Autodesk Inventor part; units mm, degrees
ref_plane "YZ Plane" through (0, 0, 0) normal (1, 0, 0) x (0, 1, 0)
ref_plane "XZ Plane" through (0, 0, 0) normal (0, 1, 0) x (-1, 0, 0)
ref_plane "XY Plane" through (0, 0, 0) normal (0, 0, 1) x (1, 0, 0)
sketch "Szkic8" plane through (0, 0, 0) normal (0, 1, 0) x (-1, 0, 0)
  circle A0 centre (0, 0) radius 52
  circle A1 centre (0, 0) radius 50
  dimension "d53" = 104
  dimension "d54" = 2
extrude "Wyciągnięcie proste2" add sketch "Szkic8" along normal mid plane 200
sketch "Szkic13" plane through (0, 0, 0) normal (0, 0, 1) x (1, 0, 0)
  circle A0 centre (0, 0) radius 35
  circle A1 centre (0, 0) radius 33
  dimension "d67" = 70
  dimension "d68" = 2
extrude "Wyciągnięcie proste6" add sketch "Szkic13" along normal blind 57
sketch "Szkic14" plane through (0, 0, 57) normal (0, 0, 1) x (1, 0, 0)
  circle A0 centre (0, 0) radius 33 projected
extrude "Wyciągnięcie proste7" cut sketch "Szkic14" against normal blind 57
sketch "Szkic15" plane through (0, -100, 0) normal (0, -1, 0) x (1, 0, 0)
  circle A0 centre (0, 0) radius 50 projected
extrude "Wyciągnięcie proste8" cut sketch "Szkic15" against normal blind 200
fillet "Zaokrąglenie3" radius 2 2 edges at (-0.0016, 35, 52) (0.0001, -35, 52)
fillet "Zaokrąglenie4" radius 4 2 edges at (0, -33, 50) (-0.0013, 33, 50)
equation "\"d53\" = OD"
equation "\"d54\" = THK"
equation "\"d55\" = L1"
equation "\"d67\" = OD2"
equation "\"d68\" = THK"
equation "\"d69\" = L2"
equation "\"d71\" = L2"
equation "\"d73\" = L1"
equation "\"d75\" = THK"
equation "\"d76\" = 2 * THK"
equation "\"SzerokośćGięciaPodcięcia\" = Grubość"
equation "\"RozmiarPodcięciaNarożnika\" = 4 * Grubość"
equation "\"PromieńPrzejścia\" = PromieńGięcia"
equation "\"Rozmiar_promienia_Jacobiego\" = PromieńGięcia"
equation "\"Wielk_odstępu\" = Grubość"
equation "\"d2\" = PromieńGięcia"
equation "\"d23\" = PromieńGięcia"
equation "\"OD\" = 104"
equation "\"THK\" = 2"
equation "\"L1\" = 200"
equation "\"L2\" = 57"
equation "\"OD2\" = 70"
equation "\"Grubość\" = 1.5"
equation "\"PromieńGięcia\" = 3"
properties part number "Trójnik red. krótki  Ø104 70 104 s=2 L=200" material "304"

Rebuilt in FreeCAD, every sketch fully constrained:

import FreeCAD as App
import Part
import Sketcher

V = App.Vector


def edges_at(feature, points):
    """Names of the edges that pass closest to the given points."""
    edges = feature.Shape.Edges
    near = lambda p: min(range(len(edges)), key=lambda i: edges[i].distToShape(Part.Vertex(*p))[0])
    return sorted({f"Edge{near(p) + 1}" for p in points})

doc = App.newDocument("Part")
params = doc.addObject("Spreadsheet::Sheet", "Params")
for row, (alias, value) in enumerate([
    ("sketch1_diameter", "104 mm"),
    ("sketch1_diameter2", "100 mm"),
    ("pad1_length", "200 mm"),
    ("sketch2_diameter", "70 mm"),
    ("sketch2_diameter2", "66 mm"),
    ("pad2_length", "57 mm"),
    ("sketch3_diameter", "66 mm"),
    ("pocket1_length", "57 mm"),
    ("sketch4_diameter", "100 mm"),
    ("pocket2_length", "200 mm"),
    ("fillet_radius", "2 mm"),
    ("fillet2_radius", "4 mm"),
], start=1):
    params.set(f"A{row}", alias)
    params.set(f"B{row}", "=" + value)
    params.setAlias(f"B{row}", alias)

body = doc.addObject("PartDesign::Body", "Body")

# Sketch on XZ plane
sketch1 = body.newObject("Sketcher::SketchObject", "Sketch")
sketch1.AttachmentSupport = (doc.getObject("XZ_Plane"), [""])
sketch1.MapMode = "FlatFace"
sketch1.addGeometry([
    Part.Circle(V(0, 0, 0), V(0, 0, 1), 52),
    Part.Circle(V(0, 0, 0), V(0, 0, 1), 50),
], False)
sketch1.addConstraint([
    Sketcher.Constraint("Coincident", 0, 3, -1, 1),
    Sketcher.Constraint("Coincident", 1, 3, -1, 1),
    Sketcher.Constraint("Diameter", 0, 104.0),
    Sketcher.Constraint("Diameter", 1, 100.0),
])
sketch1.setExpression("Constraints[2]", "Params.sketch1_diameter")
sketch1.setExpression("Constraints[3]", "Params.sketch1_diameter2")
pad1 = body.newObject("PartDesign::Pad", "Pad")
pad1.Profile = sketch1
pad1.setExpression("Length", "Params.pad1_length")
pad1.Midplane = True

# Sketch on XY plane
sketch2 = body.newObject("Sketcher::SketchObject", "Sketch001")
sketch2.AttachmentSupport = (doc.getObject("XY_Plane"), [""])
sketch2.MapMode = "FlatFace"
sketch2.addGeometry([
    Part.Circle(V(0, 0, 0), V(0, 0, 1), 35),
    Part.Circle(V(0, 0, 0), V(0, 0, 1), 33),
], False)
sketch2.addConstraint([
    Sketcher.Constraint("Coincident", 0, 3, -1, 1),
    Sketcher.Constraint("Coincident", 1, 3, -1, 1),
    Sketcher.Constraint("Diameter", 0, 70.0),
    Sketcher.Constraint("Diameter", 1, 66.0),
])
sketch2.setExpression("Constraints[2]", "Params.sketch2_diameter")
sketch2.setExpression("Constraints[3]", "Params.sketch2_diameter2")
pad2 = body.newObject("PartDesign::Pad", "Pad001")
pad2.Profile = sketch2
pad2.setExpression("Length", "Params.pad2_length")

# Sketch on XY plane
sketch3 = body.newObject("Sketcher::SketchObject", "Sketch002")
sketch3.AttachmentSupport = (doc.getObject("XY_Plane"), [""])
sketch3.MapMode = "FlatFace"
sketch3.AttachmentOffset = App.Placement(V(0, 0, 57), App.Rotation())
sketch3.addGeometry(Part.Circle(V(0, 0, 0), V(0, 0, 1), 33), False)
sketch3.addConstraint([
    Sketcher.Constraint("Coincident", 0, 3, -1, 1),
    Sketcher.Constraint("Diameter", 0, 66.0),
])
sketch3.setExpression("Constraints[1]", "Params.sketch3_diameter")
pocket1 = body.newObject("PartDesign::Pocket", "Pocket")
pocket1.Profile = sketch3
pocket1.setExpression("Length", "Params.pocket1_length")

# Sketch on XZ plane
sketch4 = body.newObject("Sketcher::SketchObject", "Sketch003")
sketch4.AttachmentSupport = (doc.getObject("XZ_Plane"), [""])
sketch4.MapMode = "FlatFace"
sketch4.AttachmentOffset = App.Placement(V(0, 0, 100), App.Rotation())
sketch4.addGeometry(Part.Circle(V(0, 0, 0), V(0, 0, 1), 50), False)
sketch4.addConstraint([
    Sketcher.Constraint("Coincident", 0, 3, -1, 1),
    Sketcher.Constraint("Diameter", 0, 100.0),
])
sketch4.setExpression("Constraints[1]", "Params.sketch4_diameter")
pocket2 = body.newObject("PartDesign::Pocket", "Pocket001")
pocket2.Profile = sketch4
pocket2.setExpression("Length", "Params.pocket2_length")
doc.recompute()

fillet = body.newObject("PartDesign::Fillet", "Fillet")
fillet.Base = (pocket2, edges_at(pocket2, [(-0.002, 35, 52), (0, -35, 52)]))
fillet.setExpression("Radius", "Params.fillet_radius")
doc.recompute()

fillet2 = body.newObject("PartDesign::Fillet", "Fillet001")
fillet2.Base = (fillet, edges_at(fillet, [(0, -33, 50), (-0.001, 33, 50)]))
fillet2.setExpression("Radius", "Params.fillet2_radius")

doc.recompute()
